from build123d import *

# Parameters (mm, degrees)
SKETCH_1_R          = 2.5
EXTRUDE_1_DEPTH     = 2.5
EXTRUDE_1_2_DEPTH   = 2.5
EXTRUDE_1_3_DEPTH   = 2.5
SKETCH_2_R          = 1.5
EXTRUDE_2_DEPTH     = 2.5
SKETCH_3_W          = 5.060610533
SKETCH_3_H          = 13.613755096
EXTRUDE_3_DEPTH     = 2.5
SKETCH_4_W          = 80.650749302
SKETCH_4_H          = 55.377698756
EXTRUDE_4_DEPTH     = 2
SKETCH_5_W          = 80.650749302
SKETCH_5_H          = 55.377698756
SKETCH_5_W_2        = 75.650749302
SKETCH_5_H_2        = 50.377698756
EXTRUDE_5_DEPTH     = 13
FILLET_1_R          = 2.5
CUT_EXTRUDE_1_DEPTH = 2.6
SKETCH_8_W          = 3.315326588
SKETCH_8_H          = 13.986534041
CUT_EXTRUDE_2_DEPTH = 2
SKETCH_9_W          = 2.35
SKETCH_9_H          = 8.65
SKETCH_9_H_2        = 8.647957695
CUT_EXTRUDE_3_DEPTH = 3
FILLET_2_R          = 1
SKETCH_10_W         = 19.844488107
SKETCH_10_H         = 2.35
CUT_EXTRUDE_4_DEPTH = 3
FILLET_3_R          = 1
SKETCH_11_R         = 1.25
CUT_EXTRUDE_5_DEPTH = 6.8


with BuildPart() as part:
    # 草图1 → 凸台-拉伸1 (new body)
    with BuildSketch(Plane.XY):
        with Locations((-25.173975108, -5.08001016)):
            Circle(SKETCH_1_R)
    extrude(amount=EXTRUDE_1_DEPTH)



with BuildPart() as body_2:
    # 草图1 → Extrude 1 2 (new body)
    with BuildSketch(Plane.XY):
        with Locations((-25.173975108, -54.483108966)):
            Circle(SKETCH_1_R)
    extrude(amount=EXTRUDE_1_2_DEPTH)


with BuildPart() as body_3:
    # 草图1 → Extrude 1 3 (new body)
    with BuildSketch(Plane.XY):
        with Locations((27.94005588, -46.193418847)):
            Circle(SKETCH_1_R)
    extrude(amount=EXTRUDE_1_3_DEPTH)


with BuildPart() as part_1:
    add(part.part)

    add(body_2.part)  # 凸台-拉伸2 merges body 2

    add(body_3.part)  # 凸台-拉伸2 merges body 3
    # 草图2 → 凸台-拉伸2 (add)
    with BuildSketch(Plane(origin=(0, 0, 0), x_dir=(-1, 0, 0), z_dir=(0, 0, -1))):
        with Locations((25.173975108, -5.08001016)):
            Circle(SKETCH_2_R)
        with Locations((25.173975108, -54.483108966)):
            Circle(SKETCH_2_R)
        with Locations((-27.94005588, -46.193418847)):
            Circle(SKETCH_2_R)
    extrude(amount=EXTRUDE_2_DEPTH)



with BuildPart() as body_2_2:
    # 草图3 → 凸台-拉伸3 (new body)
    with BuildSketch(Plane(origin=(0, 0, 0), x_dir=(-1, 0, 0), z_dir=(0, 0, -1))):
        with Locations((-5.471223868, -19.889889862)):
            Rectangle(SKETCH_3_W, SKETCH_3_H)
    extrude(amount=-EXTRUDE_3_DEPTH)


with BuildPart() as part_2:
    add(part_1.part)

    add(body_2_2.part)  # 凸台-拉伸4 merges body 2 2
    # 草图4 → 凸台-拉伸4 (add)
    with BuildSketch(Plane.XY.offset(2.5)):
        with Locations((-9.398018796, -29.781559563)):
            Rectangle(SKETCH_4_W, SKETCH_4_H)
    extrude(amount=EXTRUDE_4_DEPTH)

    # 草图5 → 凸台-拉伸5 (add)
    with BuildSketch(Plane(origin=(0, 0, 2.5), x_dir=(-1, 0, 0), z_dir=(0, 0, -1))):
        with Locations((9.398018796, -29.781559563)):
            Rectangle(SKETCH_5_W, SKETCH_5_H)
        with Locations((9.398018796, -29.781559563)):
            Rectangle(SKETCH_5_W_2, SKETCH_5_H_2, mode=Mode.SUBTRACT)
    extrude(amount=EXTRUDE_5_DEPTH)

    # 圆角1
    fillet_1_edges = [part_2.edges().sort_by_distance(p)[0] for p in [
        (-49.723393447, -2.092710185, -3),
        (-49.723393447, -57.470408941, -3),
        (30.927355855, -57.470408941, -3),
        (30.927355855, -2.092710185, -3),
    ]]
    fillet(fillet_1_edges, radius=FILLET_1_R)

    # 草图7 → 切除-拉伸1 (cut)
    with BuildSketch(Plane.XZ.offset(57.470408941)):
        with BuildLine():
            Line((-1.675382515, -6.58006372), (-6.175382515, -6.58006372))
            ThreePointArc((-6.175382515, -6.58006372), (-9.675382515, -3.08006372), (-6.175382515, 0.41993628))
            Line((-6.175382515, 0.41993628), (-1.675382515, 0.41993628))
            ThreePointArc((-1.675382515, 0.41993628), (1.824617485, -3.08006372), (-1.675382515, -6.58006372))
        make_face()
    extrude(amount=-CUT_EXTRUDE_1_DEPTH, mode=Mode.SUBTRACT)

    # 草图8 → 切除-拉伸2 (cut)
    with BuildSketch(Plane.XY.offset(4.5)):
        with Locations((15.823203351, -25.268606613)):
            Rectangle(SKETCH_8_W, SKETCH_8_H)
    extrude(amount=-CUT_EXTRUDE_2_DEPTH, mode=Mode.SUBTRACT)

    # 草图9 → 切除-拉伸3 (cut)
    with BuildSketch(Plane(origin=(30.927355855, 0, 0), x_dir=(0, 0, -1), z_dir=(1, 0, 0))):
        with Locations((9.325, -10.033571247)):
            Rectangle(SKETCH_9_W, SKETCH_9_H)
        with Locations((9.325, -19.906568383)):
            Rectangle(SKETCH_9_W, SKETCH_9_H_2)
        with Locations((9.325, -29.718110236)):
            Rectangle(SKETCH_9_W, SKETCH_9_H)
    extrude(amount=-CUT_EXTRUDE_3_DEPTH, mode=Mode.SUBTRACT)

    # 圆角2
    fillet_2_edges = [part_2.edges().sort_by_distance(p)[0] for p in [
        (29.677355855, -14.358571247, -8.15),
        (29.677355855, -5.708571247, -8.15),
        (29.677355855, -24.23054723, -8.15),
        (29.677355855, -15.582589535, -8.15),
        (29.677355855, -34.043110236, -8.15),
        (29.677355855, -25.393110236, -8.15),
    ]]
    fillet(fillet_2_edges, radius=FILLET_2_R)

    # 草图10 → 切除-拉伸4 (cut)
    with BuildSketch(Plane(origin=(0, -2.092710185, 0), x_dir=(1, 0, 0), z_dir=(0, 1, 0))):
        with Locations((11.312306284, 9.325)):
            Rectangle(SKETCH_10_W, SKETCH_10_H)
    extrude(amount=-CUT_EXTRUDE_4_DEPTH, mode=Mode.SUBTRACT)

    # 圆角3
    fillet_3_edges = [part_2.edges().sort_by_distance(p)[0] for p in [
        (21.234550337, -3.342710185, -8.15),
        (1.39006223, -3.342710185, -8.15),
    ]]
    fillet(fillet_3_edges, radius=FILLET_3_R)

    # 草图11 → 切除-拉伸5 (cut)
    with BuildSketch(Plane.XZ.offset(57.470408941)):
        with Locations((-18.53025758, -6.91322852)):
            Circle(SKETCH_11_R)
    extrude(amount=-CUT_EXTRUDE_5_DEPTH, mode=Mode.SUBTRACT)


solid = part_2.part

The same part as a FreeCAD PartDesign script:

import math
import FreeCAD as App
import Part
import Sketcher


def edges_at(feature, points):
    """Names of the edges that pass closest to the given points."""
    edges = feature.Shape.Edges
    near = lambda p: min(range(len(edges)), key=lambda i: edges[i].distToShape(Part.Vertex(*p))[0])
    return sorted({f"Edge{near(p) + 1}" for p in points})

doc = App.newDocument("Part")
params = doc.addObject("Spreadsheet::Sheet", "Params")
for row, (alias, value) in enumerate([
    ("sketch1_diameter", "5 mm"),
    ("pad1_length", "2.5 mm"),
    ("sketch2_diameter", "5 mm"),
    ("pad2_length", "2.5 mm"),
    ("sketch3_diameter", "5 mm"),
    ("pad3_length", "2.5 mm"),
    ("sketch4_diameter", "3 mm"),
    ("pad4_length", "2.5 mm"),
    ("pad5_length", "2.5 mm"),
    ("pad6_length", "2 mm"),
    ("pad7_length", "13 mm"),
    ("fillet_radius", "2.5 mm"),
    ("sketch8_radius", "3.5 mm"),
    ("sketch8_width", "4.5 mm"),
    ("pocket1_length", "2.6 mm"),
    ("pocket2_length", "2 mm"),
    ("sketch10_width", "8.65 mm"),
    ("sketch10_height", "2.35 mm"),
    ("pocket3_length", "3 mm"),
    ("fillet2_radius", "1 mm"),
    ("sketch11_height", "2.35 mm"),
    ("pocket4_length", "3 mm"),
    ("fillet3_radius", "1 mm"),
    ("sketch12_diameter", "2.5 mm"),
    ("pocket5_length", "6.8 mm"),
], start=1):
    params.set(f"A{row}", alias)
    params.set(f"B{row}", "=" + value)
    params.setAlias(f"B{row}", alias)

body = doc.addObject("PartDesign::Body", "Body")

# Sketch on XY plane
sketch1 = body.newObject("Sketcher::SketchObject", "Sketch")
sketch1.AttachmentSupport = (doc.getObject("XY_Plane"), [""])
sketch1.MapMode = "FlatFace"
sketch1.addGeometry(Part.Circle(App.Vector(-25.173975, -5.08001, 0), App.Vector(0, 0, 1), 2.5), False)
sketch1.addConstraint(Sketcher.Constraint("Diameter", 0, 5.0))
sketch1.addConstraint(Sketcher.Constraint("DistanceY", 0, 3, -1, 1, 5.08001))
sketch1.addConstraint(Sketcher.Constraint("DistanceX", 0, 3, -1, 1, 25.173975))
sketch1.setExpression("Constraints[0]", "Params.sketch1_diameter")
pad1 = body.newObject("PartDesign::Pad", "Pad")
pad1.Profile = sketch1
pad1.setExpression("Length", "Params.pad1_length")
body2 = doc.addObject("PartDesign::Body", "Body001")

# Sketch on XY plane
sketch2 = body2.newObject("Sketcher::SketchObject", "Sketch001")
sketch2.AttachmentSupport = (doc.getObject("XY_Plane001"), [""])
sketch2.MapMode = "FlatFace"
sketch2.addGeometry(Part.Circle(App.Vector(-25.173975, -54.483109, 0), App.Vector(0, 0, 1), 2.5), False)
sketch2.addConstraint(Sketcher.Constraint("Diameter", 0, 5.0))
sketch2.addConstraint(Sketcher.Constraint("DistanceY", 0, 3, -1, 1, 54.483109))
sketch2.addConstraint(Sketcher.Constraint("DistanceX", 0, 3, -1, 1, 25.173975))
sketch2.setExpression("Constraints[0]", "Params.sketch2_diameter")
pad2 = body2.newObject("PartDesign::Pad", "Pad001")
pad2.Profile = sketch2
pad2.setExpression("Length", "Params.pad2_length")
body3 = doc.addObject("PartDesign::Body", "Body002")

# Sketch on XY plane
sketch3 = body3.newObject("Sketcher::SketchObject", "Sketch002")
sketch3.AttachmentSupport = (doc.getObject("XY_Plane002"), [""])
sketch3.MapMode = "FlatFace"
sketch3.addGeometry(Part.Circle(App.Vector(27.940056, -46.193419, 0), App.Vector(0, 0, 1), 2.5), False)
sketch3.addConstraint(Sketcher.Constraint("Diameter", 0, 5.0))
sketch3.addConstraint(Sketcher.Constraint("DistanceY", 0, 3, -1, 1, 46.193419))
sketch3.addConstraint(Sketcher.Constraint("DistanceX", -1, 1, 0, 3, 27.940056))
sketch3.setExpression("Constraints[0]", "Params.sketch3_diameter")
pad3 = body3.newObject("PartDesign::Pad", "Pad002")
pad3.Profile = sketch3
pad3.setExpression("Length", "Params.pad3_length")
body.AllowCompound = True
doc.recompute()

boolean = body.newObject("PartDesign::Boolean", "Boolean")
boolean.Type = "Fuse"
boolean.addObjects([body2])
doc.recompute()

boolean2 = body.newObject("PartDesign::Boolean", "Boolean001")
boolean2.Type = "Fuse"
boolean2.addObjects([body3])

# Sketch on XY plane
sketch4 = body.newObject("Sketcher::SketchObject", "Sketch003")
sketch4.AttachmentSupport = (doc.getObject("XY_Plane"), [""])
sketch4.MapMode = "FlatFace"
sketch4.addGeometry(Part.Circle(App.Vector(-25.173975, -5.08001, 0), App.Vector(0, 0, 1), 1.5), False)
sketch4.addGeometry(Part.Circle(App.Vector(-25.173975, -54.483109, 0), App.Vector(0, 0, 1), 1.5), False)
sketch4.addGeometry(Part.Circle(App.Vector(27.940056, -46.193419, 0), App.Vector(0, 0, 1), 1.5), False)
sketch4.addConstraint(Sketcher.Constraint("Equal", 0, 1))
sketch4.addConstraint(Sketcher.Constraint("Equal", 1, 2))
sketch4.addConstraint(Sketcher.Constraint("Vertical", 0, 3, 1, 3))
sketch4.addConstraint(Sketcher.Constraint("Diameter", 0, 3.0))
sketch4.addConstraint(Sketcher.Constraint("DistanceY", 1, 3, 0, 3, 49.403099))
sketch4.addConstraint(Sketcher.Constraint("DistanceY", 0, 3, -1, 1, 5.08001))
sketch4.addConstraint(Sketcher.Constraint("DistanceY", 2, 3, -1, 1, 46.193419))
sketch4.addConstraint(Sketcher.Constraint("DistanceX", 1, 3, 2, 3, 53.114031))
sketch4.addConstraint(Sketcher.Constraint("DistanceX", 0, 3, -1, 1, 25.173975))
sketch4.setExpression("Constraints[3]", "Params.sketch4_diameter")
pad4 = body.newObject("PartDesign::Pad", "Pad003")
pad4.Profile = sketch4
pad4.setExpression("Length", "Params.pad4_length")
pad4.Reversed = True
body4 = doc.addObject("PartDesign::Body", "Body003")

# Sketch on XY plane
sketch5 = body4.newObject("Sketcher::SketchObject", "Sketch004")
sketch5.AttachmentSupport = (doc.getObject("XY_Plane003"), [""])
sketch5.MapMode = "FlatFace"
sketch5.addGeometry(Part.LineSegment(App.Vector(8.001529, -13.083012, 0), App.Vector(8.001529, -26.696767, 0)), False)
sketch5.addGeometry(Part.LineSegment(App.Vector(8.001529, -26.696767, 0), App.Vector(2.940919, -26.696767, 0)), False)
sketch5.addGeometry(Part.LineSegment(App.Vector(2.940919, -26.696767, 0), App.Vector(2.940919, -13.083012, 0)), False)
sketch5.addGeometry(Part.LineSegment(App.Vector(2.940919, -13.083012, 0), App.Vector(8.001529, -13.083012, 0)), False)
sketch5.addConstraint(Sketcher.Constraint("Coincident", 0, 2, 1, 1))
sketch5.addConstraint(Sketcher.Constraint("Coincident", 1, 2, 2, 1))
sketch5.addConstraint(Sketcher.Constraint("Coincident", 2, 2, 3, 1))
sketch5.addConstraint(Sketcher.Constraint("Coincident", 3, 2, 0, 1))
sketch5.addConstraint(Sketcher.Constraint("Vertical", 0))
sketch5.addConstraint(Sketcher.Constraint("Horizontal", 1))
sketch5.addConstraint(Sketcher.Constraint("Vertical", 2))
sketch5.addConstraint(Sketcher.Constraint("Horizontal", 3))
sketch5.addConstraint(Sketcher.Constraint("DistanceX", 1, 2, 1, 1, 5.060611))
sketch5.addConstraint(Sketcher.Constraint("DistanceY", 0, 2, 0, 1, 13.613755))
sketch5.addConstraint(Sketcher.Constraint("DistanceX", -1, 1, 0, 2, 8.001529))
sketch5.addConstraint(Sketcher.Constraint("DistanceY", 0, 2, -1, 1, 26.696767))
pad5 = body4.newObject("PartDesign::Pad", "Pad004")
pad5.Profile = sketch5
pad5.setExpression("Length", "Params.pad5_length")
body.AllowCompound = True
doc.recompute()

boolean3 = body.newObject("PartDesign::Boolean", "Boolean002")
boolean3.Type = "Fuse"
boolean3.addObjects([body4])

# Sketch on XY plane
sketch6 = body.newObject("Sketcher::SketchObject", "Sketch005")
sketch6.AttachmentSupport = (doc.getObject("XY_Plane"), [""])
sketch6.MapMode = "FlatFace"
sketch6.AttachmentOffset = App.Placement(App.Vector(0, 0, 2.5), App.Rotation())
sketch6.addGeometry(Part.LineSegment(App.Vector(-49.723393, -2.09271, 0), App.Vector(-49.723393, -57.470409, 0)), False)
sketch6.addGeometry(Part.LineSegment(App.Vector(-49.723393, -57.470409, 0), App.Vector(30.927356, -57.470409, 0)), False)
sketch6.addGeometry(Part.LineSegment(App.Vector(30.927356, -57.470409, 0), App.Vector(30.927356, -2.09271, 0)), False)
sketch6.addGeometry(Part.LineSegment(App.Vector(30.927356, -2.09271, 0), App.Vector(-49.723393, -2.09271, 0)), False)
sketch6.addConstraint(Sketcher.Constraint("Coincident", 0, 2, 1, 1))
sketch6.addConstraint(Sketcher.Constraint("Coincident", 1, 2, 2, 1))
sketch6.addConstraint(Sketcher.Constraint("Coincident", 2, 2, 3, 1))
sketch6.addConstraint(Sketcher.Constraint("Coincident", 3, 2, 0, 1))
sketch6.addConstraint(Sketcher.Constraint("Vertical", 0))
sketch6.addConstraint(Sketcher.Constraint("Horizontal", 1))
sketch6.addConstraint(Sketcher.Constraint("Vertical", 2))
sketch6.addConstraint(Sketcher.Constraint("Horizontal", 3))
sketch6.addConstraint(Sketcher.Constraint("DistanceY", 0, 2, 0, 1, 55.377699))
sketch6.addConstraint(Sketcher.Constraint("DistanceX", 1, 1, 1, 2, 80.650749))
sketch6.addConstraint(Sketcher.Constraint("DistanceY", 0, 2, -1, 1, 57.470409))
sketch6.addConstraint(Sketcher.Constraint("DistanceX", 0, 2, -1, 1, 49.723393))
pad6 = body.newObject("PartDesign::Pad", "Pad005")
pad6.Profile = sketch6
pad6.setExpression("Length", "Params.pad6_length")

# Sketch on XY plane
sketch7 = body.newObject("Sketcher::SketchObject", "Sketch006")
sketch7.AttachmentSupport = (doc.getObject("XY_Plane"), [""])
sketch7.MapMode = "FlatFace"
sketch7.AttachmentOffset = App.Placement(App.Vector(0, 0, 2.5), App.Rotation())
sketch7.addGeometry(Part.LineSegment(App.Vector(30.927356, -2.09271, 0), App.Vector(30.927356, -57.470409, 0)), False)
sketch7.addGeometry(Part.LineSegment(App.Vector(30.927356, -57.470409, 0), App.Vector(-49.723393, -57.470409, 0)), False)
sketch7.addGeometry(Part.LineSegment(App.Vector(-49.723393, -57.470409, 0), App.Vector(-49.723393, -2.09271, 0)), False)
sketch7.addGeometry(Part.LineSegment(App.Vector(-49.723393, -2.09271, 0), App.Vector(30.927356, -2.09271, 0)), False)
sketch7.addGeometry(Part.LineSegment(App.Vector(-47.223393, -54.970409, 0), App.Vector(28.427356, -54.970409, 0)), False)
sketch7.addGeometry(Part.LineSegment(App.Vector(28.427356, -54.970409, 0), App.Vector(28.427356, -4.59271, 0)), False)
sketch7.addGeometry(Part.LineSegment(App.Vector(28.427356, -4.59271, 0), App.Vector(-47.223393, -4.59271, 0)), False)
sketch7.addGeometry(Part.LineSegment(App.Vector(-47.223393, -4.59271, 0), App.Vector(-47.223393, -54.970409, 0)), False)
sketch7.addConstraint(Sketcher.Constraint("Coincident", 0, 2, 1, 1))
sketch7.addConstraint(Sketcher.Constraint("Coincident", 1, 2, 2, 1))
sketch7.addConstraint(Sketcher.Constraint("Coincident", 2, 2, 3, 1))
sketch7.addConstraint(Sketcher.Constraint("Coincident", 3, 2, 0, 1))
sketch7.addConstraint(Sketcher.Constraint("Coincident", 4, 2, 5, 1))
sketch7.addConstraint(Sketcher.Constraint("Coincident", 5, 2, 6, 1))
sketch7.addConstraint(Sketcher.Constraint("Coincident", 6, 2, 7, 1))
sketch7.addConstraint(Sketcher.Constraint("Coincident", 7, 2, 4, 1))
sketch7.addConstraint(Sketcher.Constraint("Vertical", 0))
sketch7.addConstraint(Sketcher.Constraint("Horizontal", 1))
sketch7.addConstraint(Sketcher.Constraint("Vertical", 2))
sketch7.addConstraint(Sketcher.Constraint("Horizontal", 3))
sketch7.addConstraint(Sketcher.Constraint("Horizontal", 4))
sketch7.addConstraint(Sketcher.Constraint("Vertical", 5))
sketch7.addConstraint(Sketcher.Constraint("Horizontal", 6))
sketch7.addConstraint(Sketcher.Constraint("Vertical", 7))
sketch7.addConstraint(Sketcher.Constraint("DistanceX", 4, 2, 0, 2, 2.5))
sketch7.addConstraint(Sketcher.Constraint("DistanceY", 0, 2, 4, 2, 2.5))
sketch7.addConstraint(Sketcher.Constraint("DistanceY", 5, 2, 3, 2, 2.5))
sketch7.addConstraint(Sketcher.Constraint("DistanceX", 2, 2, 6, 2, 2.5))
sketch7.addConstraint(Sketcher.Constraint("DistanceY", 0, 2, 0, 1, 55.377699))
sketch7.addConstraint(Sketcher.Constraint("DistanceX", 1, 2, 1, 1, 80.650749))
sketch7.addConstraint(Sketcher.Constraint("DistanceY", 0, 2, -1, 1, 57.470409))
sketch7.addConstraint(Sketcher.Constraint("DistanceX", -1, 1, 0, 2, 30.927356))
pad7 = body.newObject("PartDesign::Pad", "Pad006")
pad7.Profile = sketch7
pad7.setExpression("Length", "Params.pad7_length")
pad7.Reversed = True
doc.recompute()

fillet = body.newObject("PartDesign::Fillet", "Fillet")
fillet.Base = (pad7, edges_at(pad7, [
    (-49.723, -2.093, -3),
    (-49.723, -57.47, -3),
    (30.927, -57.47, -3),
    (30.927, -2.093, -3),
]))
fillet.setExpression("Radius", "Params.fillet_radius")

# Sketch on XZ plane
sketch8 = body.newObject("Sketcher::SketchObject", "Sketch007")
sketch8.AttachmentSupport = (doc.getObject("XZ_Plane"), [""])
sketch8.MapMode = "FlatFace"
sketch8.AttachmentOffset = App.Placement(App.Vector(0, 0, 57.470409), App.Rotation())
sketch8.addGeometry(Part.LineSegment(App.Vector(-6.175383, -6.580064, 0), App.Vector(-1.675383, -6.580064, 0)), False)
sketch8.addGeometry(Part.ArcOfCircle(Part.Circle(App.Vector(-1.675383, -3.080064, 0), App.Vector(0, 0, 1), 3.5), math.radians(-90), math.radians(90)), False)
sketch8.addGeometry(Part.LineSegment(App.Vector(-1.675383, 0.419936, 0), App.Vector(-6.175383, 0.419936, 0)), False)
sketch8.addGeometry(Part.ArcOfCircle(Part.Circle(App.Vector(-6.175383, -3.080064, 0), App.Vector(0, 0, 1), 3.5), math.radians(90), math.radians(270)), False)
sketch8.addConstraint(Sketcher.Constraint("Tangent", 0, 2, 1, 1))
sketch8.addConstraint(Sketcher.Constraint("Tangent", 1, 2, 2, 1))
sketch8.addConstraint(Sketcher.Constraint("Tangent", 2, 2, 3, 1))
sketch8.addConstraint(Sketcher.Constraint("Tangent", 3, 2, 0, 1))
sketch8.addConstraint(Sketcher.Constraint("Horizontal", 0))
sketch8.addConstraint(Sketcher.Constraint("Horizontal", 2))
sketch8.addConstraint(Sketcher.Constraint("Radius", 1, 3.5))
sketch8.addConstraint(Sketcher.Constraint("DistanceX", 0, 1, 0, 2, 4.5))
sketch8.addConstraint(Sketcher.Constraint("DistanceX", 1, 3, -1, 1, 1.675383))
sketch8.addConstraint(Sketcher.Constraint("DistanceY", 1, 3, -1, 1, 3.080064))
sketch8.setExpression("Constraints[6]", "Params.sketch8_radius")
sketch8.setExpression("Constraints[7]", "Params.sketch8_width")
pocket1 = body.newObject("PartDesign::Pocket", "Pocket")
pocket1.Profile = sketch8
pocket1.setExpression("Length", "Params.pocket1_length")

# Sketch on XY plane
sketch9 = body.newObject("Sketcher::SketchObject", "Sketch008")
sketch9.AttachmentSupport = (doc.getObject("XY_Plane"), [""])
sketch9.MapMode = "FlatFace"
sketch9.AttachmentOffset = App.Placement(App.Vector(0, 0, 4.5), App.Rotation())
sketch9.addGeometry(Part.LineSegment(App.Vector(14.16554, -18.27534, 0), App.Vector(14.16554, -32.261874, 0)), False)
sketch9.addGeometry(Part.LineSegment(App.Vector(14.16554, -32.261874, 0), App.Vector(17.480867, -32.261874, 0)), False)
sketch9.addGeometry(Part.LineSegment(App.Vector(17.480867, -32.261874, 0), App.Vector(17.480867, -18.27534, 0)), False)
sketch9.addGeometry(Part.LineSegment(App.Vector(17.480867, -18.27534, 0), App.Vector(14.16554, -18.27534, 0)), False)
sketch9.addConstraint(Sketcher.Constraint("Coincident", 0, 2, 1, 1))
sketch9.addConstraint(Sketcher.Constraint("Coincident", 1, 2, 2, 1))
sketch9.addConstraint(Sketcher.Constraint("Coincident", 2, 2, 3, 1))
sketch9.addConstraint(Sketcher.Constraint("Coincident", 3, 2, 0, 1))
sketch9.addConstraint(Sketcher.Constraint("Vertical", 0))
sketch9.addConstraint(Sketcher.Constraint("Horizontal", 1))
sketch9.addConstraint(Sketcher.Constraint("Vertical", 2))
sketch9.addConstraint(Sketcher.Constraint("Horizontal", 3))
sketch9.addConstraint(Sketcher.Constraint("DistanceX", 1, 1, 1, 2, 3.315327))
sketch9.addConstraint(Sketcher.Constraint("DistanceY", 0, 2, 0, 1, 13.986534))
sketch9.addConstraint(Sketcher.Constraint("DistanceX", -1, 1, 0, 2, 14.16554))
sketch9.addConstraint(Sketcher.Constraint("DistanceY", 2, 2, -1, 1, 18.27534))
pocket2 = body.newObject("PartDesign::Pocket", "Pocket001")
pocket2.Profile = sketch9
pocket2.setExpression("Length", "Params.pocket2_length")

# Sketch on YZ plane
sketch10 = body.newObject("Sketcher::SketchObject", "Sketch009")
sketch10.AttachmentSupport = (doc.getObject("YZ_Plane"), [""])
sketch10.MapMode = "FlatFace"
sketch10.AttachmentOffset = App.Placement(App.Vector(0, 0, 30.927356), App.Rotation())
sketch10.addGeometry(Part.LineSegment(App.Vector(-5.708571, -8.15, 0), App.Vector(-14.358571, -8.15, 0)), False)
sketch10.addGeometry(Part.LineSegment(App.Vector(-14.358571, -8.15, 0), App.Vector(-14.358571, -10.5, 0)), False)
sketch10.addGeometry(Part.LineSegment(App.Vector(-14.358571, -10.5, 0), App.Vector(-5.708571, -10.5, 0)), False)
sketch10.addGeometry(Part.LineSegment(App.Vector(-5.708571, -10.5, 0), App.Vector(-5.708571, -8.15, 0)), False)
sketch10.addGeometry(Part.LineSegment(App.Vector(-15.58259, -8.15, 0), App.Vector(-24.230547, -8.15, 0)), False)
sketch10.addGeometry(Part.LineSegment(App.Vector(-24.230547, -8.15, 0), App.Vector(-24.230547, -10.5, 0)), False)
sketch10.addGeometry(Part.LineSegment(App.Vector(-24.230547, -10.5, 0), App.Vector(-15.58259, -10.5, 0)), False)
sketch10.addGeometry(Part.LineSegment(App.Vector(-15.58259, -10.5, 0), App.Vector(-15.58259, -8.15, 0)), False)
sketch10.addGeometry(Part.LineSegment(App.Vector(-25.39311, -8.15, 0), App.Vector(-34.04311, -8.15, 0)), False)
sketch10.addGeometry(Part.LineSegment(App.Vector(-34.04311, -8.15, 0), App.Vector(-34.04311, -10.5, 0)), False)
sketch10.addGeometry(Part.LineSegment(App.Vector(-34.04311, -10.5, 0), App.Vector(-25.39311, -10.5, 0)), False)
sketch10.addGeometry(Part.LineSegment(App.Vector(-25.39311, -10.5, 0), App.Vector(-25.39311, -8.15, 0)), False)
sketch10.addConstraint(Sketcher.Constraint("Coincident", 0, 2, 1, 1))
sketch10.addConstraint(Sketcher.Constraint("Coincident", 1, 2, 2, 1))
sketch10.addConstraint(Sketcher.Constraint("Coincident", 2, 2, 3, 1))
sketch10.addConstraint(Sketcher.Constraint("Coincident", 3, 2, 0, 1))
sketch10.addConstraint(Sketcher.Constraint("Coincident", 4, 2, 5, 1))
sketch10.addConstraint(Sketcher.Constraint("Coincident", 5, 2, 6, 1))
sketch10.addConstraint(Sketcher.Constraint("Coincident", 6, 2, 7, 1))
sketch10.addConstraint(Sketcher.Constraint("Coincident", 7, 2, 4, 1))
sketch10.addConstraint(Sketcher.Constraint("Coincident", 8, 2, 9, 1))
sketch10.addConstraint(Sketcher.Constraint("Coincident", 9, 2, 10, 1))
sketch10.addConstraint(Sketcher.Constraint("Coincident", 10, 2, 11, 1))
sketch10.addConstraint(Sketcher.Constraint("Coincident", 11, 2, 8, 1))
sketch10.addConstraint(Sketcher.Constraint("Horizontal", 0))
sketch10.addConstraint(Sketcher.Constraint("Vertical", 1))
sketch10.addConstraint(Sketcher.Constraint("Horizontal", 2))
sketch10.addConstraint(Sketcher.Constraint("Vertical", 3))
sketch10.addConstraint(Sketcher.Constraint("Horizontal", 4))
sketch10.addConstraint(Sketcher.Constraint("Vertical", 5))
sketch10.addConstraint(Sketcher.Constraint("Horizontal", 6))
sketch10.addConstraint(Sketcher.Constraint("Vertical", 7))
sketch10.addConstraint(Sketcher.Constraint("Horizontal", 8))
sketch10.addConstraint(Sketcher.Constraint("Vertical", 9))
sketch10.addConstraint(Sketcher.Constraint("Horizontal", 10))
sketch10.addConstraint(Sketcher.Constraint("Vertical", 11))
sketch10.addConstraint(Sketcher.Constraint("Horizontal", 3, 2, 4, 2))
sketch10.addConstraint(Sketcher.Constraint("Horizontal", 2, 2, 5, 2))
sketch10.addConstraint(Sketcher.Constraint("Horizontal", 7, 2, 8, 2))
sketch10.addConstraint(Sketcher.Constraint("Horizontal", 6, 2, 9, 2))
sketch10.addConstraint(Sketcher.Constraint("Equal", 2, 8))
sketch10.addConstraint(Sketcher.Constraint("DistanceX", 0, 2, 0, 1, 8.65))
sketch10.addConstraint(Sketcher.Constraint("DistanceY", 1, 2, 1, 1, 2.35))
sketch10.addConstraint(Sketcher.Constraint("DistanceY", 1, 2, -1, 1, 10.5))
sketch10.addConstraint(Sketcher.Constraint("DistanceX", 4, 2, 4, 1, 8.647958))
sketch10.addConstraint(Sketcher.Constraint("DistanceX", 0, 2, -1, 1, 14.358571))
sketch10.addConstraint(Sketcher.Constraint("DistanceX", 6, 2, -1, 1, 15.58259))
sketch10.addConstraint(Sketcher.Constraint("DistanceX", 8, 2, -1, 1, 34.04311))
sketch10.setExpression("Constraints[29]", "Params.sketch10_width")
sketch10.setExpression("Constraints[30]", "Params.sketch10_height")
pocket3 = body.newObject("PartDesign::Pocket", "Pocket002")
pocket3.Profile = sketch10
pocket3.setExpression("Length", "Params.pocket3_length")
doc.recompute()

fillet2 = body.newObject("PartDesign::Fillet", "Fillet001")
fillet2.Base = (pocket3, edges_at(pocket3, [
    (29.677, -14.359, -8.15),
    (29.677, -5.709, -8.15),
    (29.677, -24.231, -8.15),
    (29.677, -15.583, -8.15),
    (29.677, -34.043, -8.15),
    (29.677, -25.393, -8.15),
]))
fillet2.setExpression("Radius", "Params.fillet2_radius")

# Sketch on XZ plane
sketch11 = body.newObject("Sketcher::SketchObject", "Sketch010")
sketch11.AttachmentSupport = (doc.getObject("XZ_Plane"), [""])
sketch11.MapMode = "FlatFace"
sketch11.AttachmentOffset = App.Placement(App.Vector(0, 0, 2.09271), App.Rotation())
sketch11.addGeometry(Part.LineSegment(App.Vector(1.390062, -10.5, 0), App.Vector(1.390062, -8.15, 0)), False)
sketch11.addGeometry(Part.LineSegment(App.Vector(1.390062, -8.15, 0), App.Vector(21.23455, -8.15, 0)), False)
sketch11.addGeometry(Part.LineSegment(App.Vector(21.23455, -8.15, 0), App.Vector(21.23455, -10.5, 0)), False)
sketch11.addGeometry(Part.LineSegment(App.Vector(21.23455, -10.5, 0), App.Vector(1.390062, -10.5, 0)), False)
sketch11.addConstraint(Sketcher.Constraint("Coincident", 0, 2, 1, 1))
sketch11.addConstraint(Sketcher.Constraint("Coincident", 1, 2, 2, 1))
sketch11.addConstraint(Sketcher.Constraint("Coincident", 2, 2, 3, 1))
sketch11.addConstraint(Sketcher.Constraint("Coincident", 3, 2, 0, 1))
sketch11.addConstraint(Sketcher.Constraint("Vertical", 0))
sketch11.addConstraint(Sketcher.Constraint("Horizontal", 1))
sketch11.addConstraint(Sketcher.Constraint("Vertical", 2))
sketch11.addConstraint(Sketcher.Constraint("Horizontal", 3))
sketch11.addConstraint(Sketcher.Constraint("DistanceY", 0, 1, 0, 2, 2.35))
sketch11.addConstraint(Sketcher.Constraint("DistanceY", 2, 2, -1, 1, 10.5))
sketch11.addConstraint(Sketcher.Constraint("DistanceX", 1, 1, 1, 2, 19.844488))
sketch11.addConstraint(Sketcher.Constraint("DistanceX", -1, 1, 1, 2, 21.23455))
sketch11.setExpression("Constraints[8]", "Params.sketch11_height")
pocket4 = body.newObject("PartDesign::Pocket", "Pocket003")
pocket4.Profile = sketch11
pocket4.setExpression("Length", "Params.pocket4_length")
pocket4.Reversed = True
doc.recompute()

fillet3 = body.newObject("PartDesign::Fillet", "Fillet002")
fillet3.Base = (pocket4, edges_at(pocket4, [(21.235, -3.343, -8.15), (1.39, -3.343, -8.15)]))
fillet3.setExpression("Radius", "Params.fillet3_radius")

# Sketch on XZ plane
sketch12 = body.newObject("Sketcher::SketchObject", "Sketch011")
sketch12.AttachmentSupport = (doc.getObject("XZ_Plane"), [""])
sketch12.MapMode = "FlatFace"
sketch12.AttachmentOffset = App.Placement(App.Vector(0, 0, 57.470409), App.Rotation())
sketch12.addGeometry(Part.Circle(App.Vector(-18.530258, -6.913229, 0), App.Vector(0, 0, 1), 1.25), False)
sketch12.addConstraint(Sketcher.Constraint("Diameter", 0, 2.5))
sketch12.addConstraint(Sketcher.Constraint("DistanceY", 0, 3, -1, 1, 6.913229))
sketch12.addConstraint(Sketcher.Constraint("DistanceX", 0, 3, -1, 1, 18.530258))
sketch12.setExpression("Constraints[0]", "Params.sketch12_diameter")
pocket5 = body.newObject("PartDesign::Pocket", "Pocket004")
pocket5.Profile = sketch12
pocket5.setExpression("Length", "Params.pocket5_length")

doc.recompute()
